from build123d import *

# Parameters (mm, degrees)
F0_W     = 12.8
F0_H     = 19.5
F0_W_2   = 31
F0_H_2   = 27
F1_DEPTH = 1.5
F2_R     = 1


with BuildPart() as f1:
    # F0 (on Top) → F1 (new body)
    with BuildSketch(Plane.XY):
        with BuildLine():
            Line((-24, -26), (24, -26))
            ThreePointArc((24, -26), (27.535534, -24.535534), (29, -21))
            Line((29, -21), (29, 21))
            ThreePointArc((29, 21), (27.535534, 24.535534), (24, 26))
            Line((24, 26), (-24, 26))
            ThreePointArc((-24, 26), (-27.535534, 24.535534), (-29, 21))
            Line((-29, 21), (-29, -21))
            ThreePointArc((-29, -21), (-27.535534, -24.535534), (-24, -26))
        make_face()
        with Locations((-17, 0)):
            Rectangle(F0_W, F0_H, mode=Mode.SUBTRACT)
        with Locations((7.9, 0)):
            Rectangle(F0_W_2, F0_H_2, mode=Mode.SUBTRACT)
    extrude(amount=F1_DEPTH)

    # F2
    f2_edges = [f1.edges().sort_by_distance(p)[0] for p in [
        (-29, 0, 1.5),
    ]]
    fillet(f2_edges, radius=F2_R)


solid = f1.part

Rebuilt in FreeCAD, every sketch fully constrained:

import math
import FreeCAD as App
import Part
import Sketcher
from FreeCAD import Vector
Q = App.Units.Quantity


def edges_at(feature, points):
    """Names of the edges that pass closest to the given points."""
    edges = feature.Shape.Edges
    near = lambda p: min(range(len(edges)), key=lambda i: edges[i].distToShape(Part.Vertex(*p))[0])
    return sorted({f"Edge{near(p) + 1}" for p in points})

doc = App.newDocument("Part")
body = doc.addObject("PartDesign::Body", "Body")

# Sketch on XY plane
sketch1 = body.newObject("Sketcher::SketchObject", "Sketch")
sketch1.AttachmentSupport = (doc.getObject("XY_Plane"), [""])
sketch1.MapMode = "FlatFace"
sketch1.addGeometry([
    Part.LineSegment(Vector(-24, -26, 0), Vector(24, -26, 0)),  # 0
    Part.ArcOfCircle(Part.Circle(Vector(24, -21, 0), Vector(0, 0, 1), 5), math.radians(-90), math.radians(0)),  # 1
    Part.LineSegment(Vector(29, -21, 0), Vector(29, 21, 0)),  # 2
    Part.ArcOfCircle(Part.Circle(Vector(24, 21, 0), Vector(0, 0, 1), 5), math.radians(0), math.radians(90)),  # 3
    Part.LineSegment(Vector(24, 26, 0), Vector(-24, 26, 0)),  # 4
    Part.ArcOfCircle(Part.Circle(Vector(-24, 21, 0), Vector(0, 0, 1), 5), math.radians(90), math.radians(180)),  # 5
    Part.LineSegment(Vector(-29, 21, 0), Vector(-29, -21, 0)),  # 6
    Part.ArcOfCircle(Part.Circle(Vector(-24, -21, 0), Vector(0, 0, 1), 5), math.radians(180), math.radians(270)),  # 7
    Part.LineSegment(Vector(-10.6, -9.8, 0), Vector(-23.4, -9.8, 0)),  # 8
    Part.LineSegment(Vector(-23.4, -9.8, 0), Vector(-23.4, 9.8, 0)),  # 9
    Part.LineSegment(Vector(-23.4, 9.8, 0), Vector(-10.6, 9.8, 0)),  # 10
    Part.LineSegment(Vector(-10.6, 9.8, 0), Vector(-10.6, -9.8, 0)),  # 11
    Part.LineSegment(Vector(23.4, -13.5, 0), Vector(-7.6, -13.5, 0)),  # 12
    Part.LineSegment(Vector(-7.6, -13.5, 0), Vector(-7.6, 13.5, 0)),  # 13
    Part.LineSegment(Vector(-7.6, 13.5, 0), Vector(23.4, 13.5, 0)),  # 14
    Part.LineSegment(Vector(23.4, 13.5, 0), Vector(23.4, -13.5, 0)),  # 15
], False)
sketch1.addConstraint([
    Sketcher.Constraint("Tangent", 0, 2, 1, 1),
    Sketcher.Constraint("Tangent", 1, 2, 2, 1),
    Sketcher.Constraint("Tangent", 2, 2, 3, 1),
    Sketcher.Constraint("Tangent", 3, 2, 4, 1),
    Sketcher.Constraint("Tangent", 4, 2, 5, 1),
    Sketcher.Constraint("Tangent", 5, 2, 6, 1),
    Sketcher.Constraint("Tangent", 6, 2, 7, 1),
    Sketcher.Constraint("Tangent", 7, 2, 0, 1),
    Sketcher.Constraint("Coincident", 8, 2, 9, 1),
    Sketcher.Constraint("Coincident", 9, 2, 10, 1),
    Sketcher.Constraint("Coincident", 10, 2, 11, 1),
    Sketcher.Constraint("Coincident", 11, 2, 8, 1),
    Sketcher.Constraint("Coincident", 12, 2, 13, 1),
    Sketcher.Constraint("Coincident", 13, 2, 14, 1),
    Sketcher.Constraint("Coincident", 14, 2, 15, 1),
    Sketcher.Constraint("Coincident", 15, 2, 12, 1),
    Sketcher.Constraint("Horizontal", 0),
    Sketcher.Constraint("Vertical", 2),
    Sketcher.Constraint("Horizontal", 4),
    Sketcher.Constraint("Vertical", 6),
    Sketcher.Constraint("Horizontal", 8),
    Sketcher.Constraint("Vertical", 9),
    Sketcher.Constraint("Horizontal", 10),
    Sketcher.Constraint("Vertical", 11),
    Sketcher.Constraint("Horizontal", 12),
    Sketcher.Constraint("Vertical", 13),
    Sketcher.Constraint("Horizontal", 14),
    Sketcher.Constraint("Vertical", 15),
    Sketcher.Constraint("Equal", 1, 3),
    Sketcher.Constraint("Equal", 3, 5),
    Sketcher.Constraint("Equal", 5, 7),
    Sketcher.Constraint("Symmetric", 1, 3, 5, 3, -1, 1),
    Sketcher.Constraint("Radius", 1, Q("5 mm")),
    Sketcher.Constraint("DistanceX", 0, 1, 0, 2, Q("48 mm")),
    Sketcher.Constraint("DistanceX", 12, 2, 12, 1, Q("31 mm")),
    Sketcher.Constraint("DistanceY", 2, 1, 2, 2, Q("42 mm")),
    Sketcher.Constraint("DistanceY", 13, 1, 13, 2, Q("27 mm")),
    Sketcher.Constraint("DistanceX", 8, 2, 8, 1, Q("12.8 mm")),
    Sketcher.Constraint("DistanceY", 9, 1, 9, 2, Q("19.5 mm")),
    Sketcher.Constraint("DistanceX", 11, 2, 12, 2, Q("3 mm")),
    Sketcher.Constraint("DistanceX", 8, 2, -1, 1, Q("23.4 mm")),
    Sketcher.Constraint("DistanceY", 12, 2, -1, 1, Q("13.5 mm")),
    Sketcher.Constraint("DistanceY", 8, 2, -1, 1, Q("9.75 mm")),
])
pad1 = body.newObject("PartDesign::Pad", "Pad")
pad1.Profile = sketch1
pad1.Length = 1.5
doc.recompute()

fillet = body.newObject("PartDesign::Fillet", "Fillet")
fillet.Base = (pad1, edges_at(pad1, [(-29, 0, 1.5)]))
fillet.Radius = 1

doc.recompute()
